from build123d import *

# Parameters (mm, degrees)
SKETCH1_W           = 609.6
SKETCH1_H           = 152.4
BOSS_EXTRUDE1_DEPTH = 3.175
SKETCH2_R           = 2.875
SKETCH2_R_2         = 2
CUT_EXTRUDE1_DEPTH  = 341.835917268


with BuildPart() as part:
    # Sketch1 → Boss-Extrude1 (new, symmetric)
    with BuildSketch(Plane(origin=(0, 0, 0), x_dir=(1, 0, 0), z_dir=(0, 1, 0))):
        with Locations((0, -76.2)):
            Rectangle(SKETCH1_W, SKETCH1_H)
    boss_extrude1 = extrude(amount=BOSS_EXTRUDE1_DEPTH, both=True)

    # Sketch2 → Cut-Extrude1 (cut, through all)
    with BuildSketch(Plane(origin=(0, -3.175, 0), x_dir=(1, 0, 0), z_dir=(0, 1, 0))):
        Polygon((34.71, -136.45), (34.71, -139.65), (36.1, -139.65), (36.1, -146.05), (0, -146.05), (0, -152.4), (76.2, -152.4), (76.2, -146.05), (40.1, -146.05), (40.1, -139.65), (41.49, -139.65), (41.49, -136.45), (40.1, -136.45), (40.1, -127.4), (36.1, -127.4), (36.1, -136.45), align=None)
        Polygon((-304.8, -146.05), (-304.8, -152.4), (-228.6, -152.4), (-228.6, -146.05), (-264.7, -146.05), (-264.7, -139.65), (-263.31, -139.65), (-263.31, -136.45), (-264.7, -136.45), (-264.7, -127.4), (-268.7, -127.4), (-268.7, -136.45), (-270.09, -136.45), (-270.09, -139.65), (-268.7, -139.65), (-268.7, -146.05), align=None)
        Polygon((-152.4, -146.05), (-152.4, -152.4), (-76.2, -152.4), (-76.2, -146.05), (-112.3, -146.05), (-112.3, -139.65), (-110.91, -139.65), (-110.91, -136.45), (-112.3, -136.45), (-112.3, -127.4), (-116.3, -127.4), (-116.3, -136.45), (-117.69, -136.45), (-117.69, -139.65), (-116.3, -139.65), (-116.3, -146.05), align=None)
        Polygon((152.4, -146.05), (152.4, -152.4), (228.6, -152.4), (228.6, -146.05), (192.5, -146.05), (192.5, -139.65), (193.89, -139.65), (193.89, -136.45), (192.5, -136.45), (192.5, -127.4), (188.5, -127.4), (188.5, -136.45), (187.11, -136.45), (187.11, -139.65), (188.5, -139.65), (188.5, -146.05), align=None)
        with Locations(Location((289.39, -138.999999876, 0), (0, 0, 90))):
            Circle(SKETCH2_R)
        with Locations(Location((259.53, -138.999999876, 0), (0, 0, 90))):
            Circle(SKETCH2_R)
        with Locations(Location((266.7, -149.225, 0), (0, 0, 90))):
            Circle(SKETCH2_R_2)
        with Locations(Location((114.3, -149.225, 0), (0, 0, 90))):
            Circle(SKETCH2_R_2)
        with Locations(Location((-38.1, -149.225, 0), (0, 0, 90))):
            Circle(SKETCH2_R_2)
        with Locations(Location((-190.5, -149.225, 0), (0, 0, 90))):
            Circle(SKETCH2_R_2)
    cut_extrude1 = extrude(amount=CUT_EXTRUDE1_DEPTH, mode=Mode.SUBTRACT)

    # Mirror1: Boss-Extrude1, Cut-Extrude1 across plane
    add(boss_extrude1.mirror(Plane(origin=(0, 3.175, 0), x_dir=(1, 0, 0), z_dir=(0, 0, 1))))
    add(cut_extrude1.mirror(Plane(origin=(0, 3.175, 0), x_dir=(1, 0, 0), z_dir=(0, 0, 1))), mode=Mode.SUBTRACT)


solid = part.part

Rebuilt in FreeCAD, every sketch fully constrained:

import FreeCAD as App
import Part
import Sketcher
from FreeCAD import Vector
Q = App.Units.Quantity

doc = App.newDocument("Part")
body = doc.addObject("PartDesign::Body", "Body")

sketch1 = body.newObject("Sketcher::SketchObject", "Sketch")
sketch1.AttachmentSupport = (doc.getObject("XZ_Plane"), [""])
sketch1.MapMode = "FlatFace"
sketch1.addGeometry([
    Part.LineSegment(Vector(-304.8, 0, 0), Vector(-304.8, 152.4, 0)),
    Part.LineSegment(Vector(-304.8, 152.4, 0), Vector(304.8, 152.4, 0)),
    Part.LineSegment(Vector(304.8, 152.4, 0), Vector(304.8, 0, 0)),
    Part.LineSegment(Vector(304.8, 0, 0), Vector(-304.8, 0, 0)),
], False)
sketch1.addConstraint([
    Sketcher.Constraint("Coincident", 0, 2, 1, 1),
    Sketcher.Constraint("Coincident", 1, 2, 2, 1),
    Sketcher.Constraint("Coincident", 2, 2, 3, 1),
    Sketcher.Constraint("Coincident", 3, 2, 0, 1),
    Sketcher.Constraint("Vertical", 0),
    Sketcher.Constraint("Horizontal", 1),
    Sketcher.Constraint("Vertical", 2),
    Sketcher.Constraint("Horizontal", 3),
    Sketcher.Constraint("Symmetric", 2, 2, 3, 2, -1, 1),
    Sketcher.Constraint("DistanceX", 1, 1, 1, 2, Q("24 in")),
    Sketcher.Constraint("DistanceY", 0, 1, 0, 2, Q("6 in")),
])
pad1 = body.newObject("PartDesign::Pad", "Pad")
pad1.Profile = sketch1
pad1.Length = Q("0.25 in")
pad1.Midplane = True

sketch2 = body.newObject("Sketcher::SketchObject", "Sketch001")
sketch2.AttachmentSupport = (doc.getObject("XZ_Plane"), [""])
sketch2.MapMode = "FlatFace"
sketch2.AttachmentOffset = App.Placement(Vector(0, 0, 0.125 * 25.4), App.Rotation())
sketch2.addGeometry([
    Part.LineSegment(Vector(34.71, 136.45, 0), Vector(34.71, 139.65, 0)),
    Part.LineSegment(Vector(34.71, 139.65, 0), Vector(36.1, 139.65, 0)),
    Part.LineSegment(Vector(36.1, 139.65, 0), Vector(36.1, 146.05, 0)),
    Part.LineSegment(Vector(36.1, 146.05, 0), Vector(0, 146.05, 0)),
    Part.LineSegment(Vector(0, 146.05, 0), Vector(0, 152.4, 0)),
    Part.LineSegment(Vector(0, 152.4, 0), Vector(76.2, 152.4, 0)),
    Part.LineSegment(Vector(76.2, 152.4, 0), Vector(76.2, 146.05, 0)),
    Part.LineSegment(Vector(76.2, 146.05, 0), Vector(40.1, 146.05, 0)),
    Part.LineSegment(Vector(40.1, 146.05, 0), Vector(40.1, 139.65, 0)),
    Part.LineSegment(Vector(40.1, 139.65, 0), Vector(41.49, 139.65, 0)),
    Part.LineSegment(Vector(41.49, 139.65, 0), Vector(41.49, 136.45, 0)),
    Part.LineSegment(Vector(41.49, 136.45, 0), Vector(40.1, 136.45, 0)),
    Part.LineSegment(Vector(40.1, 136.45, 0), Vector(40.1, 127.4, 0)),
    Part.LineSegment(Vector(40.1, 127.4, 0), Vector(36.1, 127.4, 0)),
    Part.LineSegment(Vector(36.1, 127.4, 0), Vector(36.1, 136.45, 0)),
    Part.LineSegment(Vector(36.1, 136.45, 0), Vector(34.71, 136.45, 0)),
    Part.LineSegment(Vector(-304.8, 146.05, 0), Vector(-304.8, 152.4, 0)),
    Part.LineSegment(Vector(-304.8, 152.4, 0), Vector(-228.6, 152.4, 0)),
    Part.LineSegment(Vector(-228.6, 152.4, 0), Vector(-228.6, 146.05, 0)),
    Part.LineSegment(Vector(-228.6, 146.05, 0), Vector(-264.7, 146.05, 0)),
    Part.LineSegment(Vector(-264.7, 146.05, 0), Vector(-264.7, 139.65, 0)),
    Part.LineSegment(Vector(-264.7, 139.65, 0), Vector(-263.31, 139.65, 0)),
    Part.LineSegment(Vector(-263.31, 139.65, 0), Vector(-263.31, 136.45, 0)),
    Part.LineSegment(Vector(-263.31, 136.45, 0), Vector(-264.7, 136.45, 0)),
    Part.LineSegment(Vector(-264.7, 136.45, 0), Vector(-264.7, 127.4, 0)),
    Part.LineSegment(Vector(-264.7, 127.4, 0), Vector(-268.7, 127.4, 0)),
    Part.LineSegment(Vector(-268.7, 127.4, 0), Vector(-268.7, 136.45, 0)),
    Part.LineSegment(Vector(-268.7, 136.45, 0), Vector(-270.09, 136.45, 0)),
    Part.LineSegment(Vector(-270.09, 136.45, 0), Vector(-270.09, 139.65, 0)),
    Part.LineSegment(Vector(-270.09, 139.65, 0), Vector(-268.7, 139.65, 0)),
    Part.LineSegment(Vector(-268.7, 139.65, 0), Vector(-268.7, 146.05, 0)),
    Part.LineSegment(Vector(-268.7, 146.05, 0), Vector(-304.8, 146.05, 0)),
    Part.LineSegment(Vector(-152.4, 146.05, 0), Vector(-152.4, 152.4, 0)),
    Part.LineSegment(Vector(-152.4, 152.4, 0), Vector(-76.2, 152.4, 0)),
    Part.LineSegment(Vector(-76.2, 152.4, 0), Vector(-76.2, 146.05, 0)),
    Part.LineSegment(Vector(-76.2, 146.05, 0), Vector(-112.3, 146.05, 0)),
    Part.LineSegment(Vector(-112.3, 146.05, 0), Vector(-112.3, 139.65, 0)),
    Part.LineSegment(Vector(-112.3, 139.65, 0), Vector(-110.91, 139.65, 0)),
    Part.LineSegment(Vector(-110.91, 139.65, 0), Vector(-110.91, 136.45, 0)),
    Part.LineSegment(Vector(-110.91, 136.45, 0), Vector(-112.3, 136.45, 0)),
    Part.LineSegment(Vector(-112.3, 136.45, 0), Vector(-112.3, 127.4, 0)),
    Part.LineSegment(Vector(-112.3, 127.4, 0), Vector(-116.3, 127.4, 0)),
    Part.LineSegment(Vector(-116.3, 127.4, 0), Vector(-116.3, 136.45, 0)),
    Part.LineSegment(Vector(-116.3, 136.45, 0), Vector(-117.69, 136.45, 0)),
    Part.LineSegment(Vector(-117.69, 136.45, 0), Vector(-117.69, 139.65, 0)),
    Part.LineSegment(Vector(-117.69, 139.65, 0), Vector(-116.3, 139.65, 0)),
    Part.LineSegment(Vector(-116.3, 139.65, 0), Vector(-116.3, 146.05, 0)),
    Part.LineSegment(Vector(-116.3, 146.05, 0), Vector(-152.4, 146.05, 0)),
    Part.LineSegment(Vector(152.4, 146.05, 0), Vector(152.4, 152.4, 0)),
    Part.LineSegment(Vector(152.4, 152.4, 0), Vector(228.6, 152.4, 0)),
    Part.LineSegment(Vector(228.6, 152.4, 0), Vector(228.6, 146.05, 0)),
    Part.LineSegment(Vector(228.6, 146.05, 0), Vector(192.5, 146.05, 0)),
    Part.LineSegment(Vector(192.5, 146.05, 0), Vector(192.5, 139.65, 0)),
    Part.LineSegment(Vector(192.5, 139.65, 0), Vector(193.89, 139.65, 0)),
    Part.LineSegment(Vector(193.89, 139.65, 0), Vector(193.89, 136.45, 0)),
    Part.LineSegment(Vector(193.89, 136.45, 0), Vector(192.5, 136.45, 0)),
    Part.LineSegment(Vector(192.5, 136.45, 0), Vector(192.5, 127.4, 0)),
    Part.LineSegment(Vector(192.5, 127.4, 0), Vector(188.5, 127.4, 0)),
    Part.LineSegment(Vector(188.5, 127.4, 0), Vector(188.5, 136.45, 0)),
    Part.LineSegment(Vector(188.5, 136.45, 0), Vector(187.11, 136.45, 0)),
    Part.LineSegment(Vector(187.11, 136.45, 0), Vector(187.11, 139.65, 0)),
    Part.LineSegment(Vector(187.11, 139.65, 0), Vector(188.5, 139.65, 0)),
    Part.LineSegment(Vector(188.5, 139.65, 0), Vector(188.5, 146.05, 0)),
    Part.LineSegment(Vector(188.5, 146.05, 0), Vector(152.4, 146.05, 0)),
    Part.Circle(Vector(289.39, 139, 0), Vector(0, 0, 1), 2.875),
    Part.Circle(Vector(259.53, 139, 0), Vector(0, 0, 1), 2.875),
    Part.Circle(Vector(266.7, 149.225, 0), Vector(0, 0, 1), 2),
    Part.Circle(Vector(114.3, 149.225, 0), Vector(0, 0, 1), 2),
    Part.Circle(Vector(-38.1, 149.225, 0), Vector(0, 0, 1), 2),
    Part.Circle(Vector(-190.5, 149.225, 0), Vector(0, 0, 1), 2),
], False)
sketch2.addConstraint([
    Sketcher.Constraint("Coincident", 0, 2, 1, 1),
    Sketcher.Constraint("Coincident", 1, 2, 2, 1),
    Sketcher.Constraint("Coincident", 2, 2, 3, 1),
    Sketcher.Constraint("Coincident", 3, 2, 4, 1),
    Sketcher.Constraint("Coincident", 4, 2, 5, 1),
    Sketcher.Constraint("Coincident", 5, 2, 6, 1),
    Sketcher.Constraint("Coincident", 6, 2, 7, 1),
    Sketcher.Constraint("Coincident", 7, 2, 8, 1),
    Sketcher.Constraint("Coincident", 8, 2, 9, 1),
    Sketcher.Constraint("Coincident", 9, 2, 10, 1),
    Sketcher.Constraint("Coincident", 10, 2, 11, 1),
    Sketcher.Constraint("Coincident", 11, 2, 12, 1),
    Sketcher.Constraint("Coincident", 12, 2, 13, 1),
    Sketcher.Constraint("Coincident", 13, 2, 14, 1),
    Sketcher.Constraint("Coincident", 14, 2, 15, 1),
    Sketcher.Constraint("Coincident", 15, 2, 0, 1),
    Sketcher.Constraint("Coincident", 16, 2, 17, 1),
    Sketcher.Constraint("Coincident", 17, 2, 18, 1),
    Sketcher.Constraint("Coincident", 18, 2, 19, 1),
    Sketcher.Constraint("Coincident", 19, 2, 20, 1),
    Sketcher.Constraint("Coincident", 20, 2, 21, 1),
    Sketcher.Constraint("Coincident", 21, 2, 22, 1),
    Sketcher.Constraint("Coincident", 22, 2, 23, 1),
    Sketcher.Constraint("Coincident", 23, 2, 24, 1),
    Sketcher.Constraint("Coincident", 24, 2, 25, 1),
    Sketcher.Constraint("Coincident", 25, 2, 26, 1),
    Sketcher.Constraint("Coincident", 26, 2, 27, 1),
    Sketcher.Constraint("Coincident", 27, 2, 28, 1),
    Sketcher.Constraint("Coincident", 28, 2, 29, 1),
    Sketcher.Constraint("Coincident", 29, 2, 30, 1),
    Sketcher.Constraint("Coincident", 30, 2, 31, 1),
    Sketcher.Constraint("Coincident", 31, 2, 16, 1),
    Sketcher.Constraint("Coincident", 32, 2, 33, 1),
    Sketcher.Constraint("Coincident", 33, 2, 34, 1),
    Sketcher.Constraint("Coincident", 34, 2, 35, 1),
    Sketcher.Constraint("Coincident", 35, 2, 36, 1),
    Sketcher.Constraint("Coincident", 36, 2, 37, 1),
    Sketcher.Constraint("Coincident", 37, 2, 38, 1),
    Sketcher.Constraint("Coincident", 38, 2, 39, 1),
    Sketcher.Constraint("Coincident", 39, 2, 40, 1),
    Sketcher.Constraint("Coincident", 40, 2, 41, 1),
    Sketcher.Constraint("Coincident", 41, 2, 42, 1),
    Sketcher.Constraint("Coincident", 42, 2, 43, 1),
    Sketcher.Constraint("Coincident", 43, 2, 44, 1),
    Sketcher.Constraint("Coincident", 44, 2, 45, 1),
    Sketcher.Constraint("Coincident", 45, 2, 46, 1),
    Sketcher.Constraint("Coincident", 46, 2, 47, 1),
    Sketcher.Constraint("Coincident", 47, 2, 32, 1),
    Sketcher.Constraint("Coincident", 48, 2, 49, 1),
    Sketcher.Constraint("Coincident", 49, 2, 50, 1),
    Sketcher.Constraint("Coincident", 50, 2, 51, 1),
    Sketcher.Constraint("Coincident", 51, 2, 52, 1),
    Sketcher.Constraint("Coincident", 52, 2, 53, 1),
    Sketcher.Constraint("Coincident", 53, 2, 54, 1),
    Sketcher.Constraint("Coincident", 54, 2, 55, 1),
    Sketcher.Constraint("Coincident", 55, 2, 56, 1),
    Sketcher.Constraint("Coincident", 56, 2, 57, 1),
    Sketcher.Constraint("Coincident", 57, 2, 58, 1),
    Sketcher.Constraint("Coincident", 58, 2, 59, 1),
    Sketcher.Constraint("Coincident", 59, 2, 60, 1),
    Sketcher.Constraint("Coincident", 60, 2, 61, 1),
    Sketcher.Constraint("Coincident", 61, 2, 62, 1),
    Sketcher.Constraint("Coincident", 62, 2, 63, 1),
    Sketcher.Constraint("Coincident", 63, 2, 48, 1),
    Sketcher.Constraint("Vertical", 0),
    Sketcher.Constraint("Horizontal", 1),
    Sketcher.Constraint("Vertical", 2),
    Sketcher.Constraint("Horizontal", 3),
    Sketcher.Constraint("Vertical", 4),
    Sketcher.Constraint("Horizontal", 5),
    Sketcher.Constraint("Vertical", 6),
    Sketcher.Constraint("Horizontal", 7),
    Sketcher.Constraint("Vertical", 8),
    Sketcher.Constraint("Horizontal", 9),
    Sketcher.Constraint("Vertical", 10),
    Sketcher.Constraint("Horizontal", 11),
    Sketcher.Constraint("Vertical", 12),
    Sketcher.Constraint("Horizontal", 13),
    Sketcher.Constraint("Vertical", 14),
    Sketcher.Constraint("Horizontal", 15),
    Sketcher.Constraint("Vertical", 16),
    Sketcher.Constraint("Horizontal", 17),
    Sketcher.Constraint("Vertical", 18),
    Sketcher.Constraint("Horizontal", 19),
    Sketcher.Constraint("Vertical", 20),
    Sketcher.Constraint("Horizontal", 21),
    Sketcher.Constraint("Vertical", 22),
    Sketcher.Constraint("Horizontal", 23),
    Sketcher.Constraint("Vertical", 24),
    Sketcher.Constraint("Horizontal", 25),
    Sketcher.Constraint("Vertical", 26),
    Sketcher.Constraint("Horizontal", 27),
    Sketcher.Constraint("Vertical", 28),
    Sketcher.Constraint("Horizontal", 29),
    Sketcher.Constraint("Vertical", 30),
    Sketcher.Constraint("Horizontal", 31),
    Sketcher.Constraint("Vertical", 32),
    Sketcher.Constraint("Horizontal", 33),
    Sketcher.Constraint("Vertical", 34),
    Sketcher.Constraint("Horizontal", 35),
    Sketcher.Constraint("Vertical", 36),
    Sketcher.Constraint("Horizontal", 37),
    Sketcher.Constraint("Vertical", 38),
    Sketcher.Constraint("Horizontal", 39),
    Sketcher.Constraint("Vertical", 40),
    Sketcher.Constraint("Horizontal", 41),
    Sketcher.Constraint("Vertical", 42),
    Sketcher.Constraint("Horizontal", 43),
    Sketcher.Constraint("Vertical", 44),
    Sketcher.Constraint("Horizontal", 45),
    Sketcher.Constraint("Vertical", 46),
    Sketcher.Constraint("Horizontal", 47),
    Sketcher.Constraint("Vertical", 48),
    Sketcher.Constraint("Horizontal", 49),
    Sketcher.Constraint("Vertical", 50),
    Sketcher.Constraint("Horizontal", 51),
    Sketcher.Constraint("Vertical", 52),
    Sketcher.Constraint("Horizontal", 53),
    Sketcher.Constraint("Vertical", 54),
    Sketcher.Constraint("Horizontal", 55),
    Sketcher.Constraint("Vertical", 56),
    Sketcher.Constraint("Horizontal", 57),
    Sketcher.Constraint("Vertical", 58),
    Sketcher.Constraint("Horizontal", 59),
    Sketcher.Constraint("Vertical", 60),
    Sketcher.Constraint("Horizontal", 61),
    Sketcher.Constraint("Vertical", 62),
    Sketcher.Constraint("Horizontal", 63),
    Sketcher.Constraint("Equal", 64, 65),
    Sketcher.Constraint("Equal", 66, 67),
    Sketcher.Constraint("Equal", 67, 68),
    Sketcher.Constraint("Equal", 68, 69),
    Sketcher.Constraint("Symmetric", 5, 2, 33, 2, -2),
    Sketcher.Constraint("Symmetric", 32, 2, 48, 2, -2),
    Sketcher.Constraint("Symmetric", 17, 2, 49, 2, -2),
    Sketcher.Constraint("PointOnObject", 3, 2, -2),
    Sketcher.Constraint("Horizontal", 64, 3, 65, 3),
    Sketcher.Constraint("Horizontal", 66, 3, 67, 3),
    Sketcher.Constraint("Horizontal", 67, 3, 68, 3),
    Sketcher.Constraint("Horizontal", 68, 3, 69, 3),
    Sketcher.Constraint("Horizontal", 3, 2, 6, 2),
    Sketcher.Constraint("Horizontal", 1, 2, 8, 2),
    Sketcher.Constraint("Horizontal", 11, 2, 14, 2),
    Sketcher.Constraint("Horizontal", 7, 2, 18, 2),
    Sketcher.Constraint("Horizontal", 9, 2, 20, 2),
    Sketcher.Constraint("Horizontal", 15, 2, 22, 2),
    Sketcher.Constraint("Horizontal", 13, 2, 24, 2),
    Sketcher.Constraint("Horizontal", 23, 2, 26, 2),
    Sketcher.Constraint("Horizontal", 21, 2, 28, 2),
    Sketcher.Constraint("Horizontal", 19, 2, 30, 2),
    Sketcher.Constraint("Horizontal", 31, 2, 34, 2),
    Sketcher.Constraint("Horizontal", 29, 2, 36, 2),
    Sketcher.Constraint("Horizontal", 27, 2, 38, 2),
    Sketcher.Constraint("Horizontal", 25, 2, 40, 2),
    Sketcher.Constraint("Horizontal", 39, 2, 42, 2),
    Sketcher.Constraint("Horizontal", 37, 2, 44, 2),
    Sketcher.Constraint("Horizontal", 35, 2, 46, 2),
    Sketcher.Constraint("Horizontal", 47, 2, 50, 2),
    Sketcher.Constraint("Horizontal", 45, 2, 52, 2),
    Sketcher.Constraint("Horizontal", 43, 2, 54, 2),
    Sketcher.Constraint("Horizontal", 41, 2, 56, 2),
    Sketcher.Constraint("Horizontal", 55, 2, 58, 2),
    Sketcher.Constraint("Horizontal", 53, 2, 60, 2),
    Sketcher.Constraint("Horizontal", 51, 2, 62, 2),
    Sketcher.Constraint("Vertical", 8, 2, 11, 2),
    Sketcher.Constraint("Vertical", 2, 2, 13, 2),
    Sketcher.Constraint("Vertical", 20, 2, 23, 2),
    Sketcher.Constraint("Vertical", 26, 2, 29, 2),
    Sketcher.Constraint("Vertical", 36, 2, 39, 2),
    Sketcher.Constraint("Vertical", 42, 2, 45, 2),
    Sketcher.Constraint("Vertical", 52, 2, 55, 2),
    Sketcher.Constraint("Vertical", 58, 2, 61, 2),
    Sketcher.Constraint("Equal", 3, 7),
    Sketcher.Constraint("Equal", 1, 9),
    Sketcher.Constraint("Equal", 5, 17),
    Sketcher.Constraint("Equal", 7, 19),
    Sketcher.Constraint("Equal", 15, 21),
    Sketcher.Constraint("Equal", 13, 25),
    Sketcher.Constraint("Equal", 23, 27),
    Sketcher.Constraint("Equal", 17, 33),
    Sketcher.Constraint("Equal", 31, 35),
    Sketcher.Constraint("Equal", 29, 37),
    Sketcher.Constraint("Equal", 25, 41),
    Sketcher.Constraint("Equal", 39, 43),
    Sketcher.Constraint("Equal", 33, 49),
    Sketcher.Constraint("Equal", 47, 51),
    Sketcher.Constraint("Equal", 45, 53),
    Sketcher.Constraint("Equal", 41, 57),
    Sketcher.Constraint("Equal", 55, 59),
    Sketcher.Constraint("DistanceX", 5, 1, 5, 2, Q("3 in")),
    Sketcher.Constraint("DistanceY", -1, 1, 4, 2, Q("6 in")),
    Sketcher.Constraint("DistanceY", 4, 1, 4, 2, Q("0.25 in")),
    Sketcher.Constraint("DistanceX", -1, 1, 66, 3, Q("10.5 in")),
    Sketcher.Constraint("DistanceX", -1, 1, 67, 3, Q("4.5 in")),
    Sketcher.Constraint("DistanceX", 68, 3, -1, 1, Q("1.5 in")),
    Sketcher.Constraint("DistanceX", 69, 3, -1, 1, Q("7.5 in")),
    Sketcher.Constraint("Diameter", 64, Q("5.75 mm")),
    Sketcher.Constraint("Diameter", 66, Q("4 mm")),
    Sketcher.Constraint("DistanceY", -1, 1, 66, 3, Q("5.875 in")),
    Sketcher.Constraint("DistanceX", 1, 1, 1, 2, Q("1.39 mm")),
    Sketcher.Constraint("DistanceX", 3, 2, 3, 1, Q("36.1 mm")),
    Sketcher.Constraint("DistanceY", 0, 1, 0, 2, Q("3.2 mm")),
    Sketcher.Constraint("DistanceY", 2, 1, 2, 2, Q("6.4 mm")),
    Sketcher.Constraint("DistanceY", 12, 2, 12, 1, Q("9.05 mm")),
    Sketcher.Constraint("DistanceX", -1, 1, 64, 3, Q("289.39 mm")),
    Sketcher.Constraint("DistanceY", -1, 1, 64, 3, Q("139 mm")),
    Sketcher.Constraint("DistanceX", -1, 1, 65, 3, Q("259.53 mm")),
])
pocket1 = body.newObject("PartDesign::Pocket", "Pocket")
pocket1.Profile = sketch2
pocket1.Type = "ThroughAll"
doc.recompute()

mirrored = body.newObject("PartDesign::Mirrored", "Mirrored")
mirrored.Originals = [pad1, pocket1]
mirrored.MirrorPlane = (doc.getObject("XY_Plane"), [""])
body.Tip = mirrored

doc.recompute()
